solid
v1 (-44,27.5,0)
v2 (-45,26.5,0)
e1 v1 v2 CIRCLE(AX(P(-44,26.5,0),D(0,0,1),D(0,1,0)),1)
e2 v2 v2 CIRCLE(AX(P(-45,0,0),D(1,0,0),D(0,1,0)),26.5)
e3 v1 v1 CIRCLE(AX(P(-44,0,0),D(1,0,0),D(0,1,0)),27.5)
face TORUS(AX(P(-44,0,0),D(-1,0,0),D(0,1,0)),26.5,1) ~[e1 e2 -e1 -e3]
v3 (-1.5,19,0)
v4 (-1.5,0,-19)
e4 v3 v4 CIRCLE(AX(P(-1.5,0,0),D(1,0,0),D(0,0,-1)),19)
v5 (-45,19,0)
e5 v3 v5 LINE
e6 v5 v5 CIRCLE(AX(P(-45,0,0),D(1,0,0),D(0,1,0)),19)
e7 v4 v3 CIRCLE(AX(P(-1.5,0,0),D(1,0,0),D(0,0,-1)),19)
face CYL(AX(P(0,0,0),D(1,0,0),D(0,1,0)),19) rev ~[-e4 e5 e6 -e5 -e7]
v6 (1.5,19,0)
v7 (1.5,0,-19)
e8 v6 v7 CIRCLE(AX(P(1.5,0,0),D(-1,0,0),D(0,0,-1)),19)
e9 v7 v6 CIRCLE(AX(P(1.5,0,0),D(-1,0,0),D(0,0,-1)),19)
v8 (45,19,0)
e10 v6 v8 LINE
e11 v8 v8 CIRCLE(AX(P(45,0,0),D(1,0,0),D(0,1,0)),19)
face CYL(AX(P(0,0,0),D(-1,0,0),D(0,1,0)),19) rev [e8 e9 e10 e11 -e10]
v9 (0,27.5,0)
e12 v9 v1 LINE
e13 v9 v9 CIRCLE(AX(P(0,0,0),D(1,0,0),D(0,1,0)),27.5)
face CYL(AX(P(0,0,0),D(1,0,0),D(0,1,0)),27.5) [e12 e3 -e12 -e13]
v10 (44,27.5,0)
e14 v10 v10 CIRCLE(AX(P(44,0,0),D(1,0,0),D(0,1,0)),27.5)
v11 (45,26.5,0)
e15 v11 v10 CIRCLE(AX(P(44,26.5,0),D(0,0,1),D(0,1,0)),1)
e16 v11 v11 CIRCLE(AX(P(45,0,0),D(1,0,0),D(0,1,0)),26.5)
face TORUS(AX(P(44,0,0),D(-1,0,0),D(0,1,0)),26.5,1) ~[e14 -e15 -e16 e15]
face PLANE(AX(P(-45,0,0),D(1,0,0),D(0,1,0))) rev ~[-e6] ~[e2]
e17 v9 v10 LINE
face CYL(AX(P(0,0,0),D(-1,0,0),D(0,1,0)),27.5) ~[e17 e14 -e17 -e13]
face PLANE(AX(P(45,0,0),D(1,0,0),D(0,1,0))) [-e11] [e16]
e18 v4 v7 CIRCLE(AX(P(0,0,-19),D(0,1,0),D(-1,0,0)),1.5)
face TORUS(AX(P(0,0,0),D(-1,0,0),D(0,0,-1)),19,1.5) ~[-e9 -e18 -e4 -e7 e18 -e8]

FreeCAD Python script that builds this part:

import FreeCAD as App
import Part
import Sketcher
from FreeCAD import Vector


def edges_at(feature, points):
    """Names of the edges that pass closest to the given points."""
    edges = feature.Shape.Edges
    near = lambda p: min(range(len(edges)), key=lambda i: edges[i].distToShape(Part.Vertex(*p))[0])
    return sorted({f"Edge{near(p) + 1}" for p in points})

doc = App.newDocument("Part")
body = doc.addObject("PartDesign::Body", "Body")

sketch1 = body.newObject("Sketcher::SketchObject", "Sketch")
sketch1.AttachmentSupport = (doc.getObject("XZ_Plane"), [""])
sketch1.MapMode = "FlatFace"
sketch1.addGeometry(Part.Circle(Vector(0, -19, 0), Vector(0, 0, 1), 1.5), False)
sketch1.addConstraint(Sketcher.Constraint("PointOnObject", 0, 3, -2))
sketch1.addConstraint(Sketcher.Constraint("Diameter", 0, 3.0))
sketch1.addConstraint(Sketcher.Constraint("DistanceY", 0, 3, -1, 1, 19.0))
revolution = body.newObject("PartDesign::Revolution", "Revolution")
revolution.Profile = sketch1
revolution.ReferenceAxis = (sketch1, ["H_Axis"])
revolution.Angle = 360

sketch2 = body.newObject("Sketcher::SketchObject", "Sketch001")
sketch2.AttachmentSupport = (doc.getObject("YZ_Plane"), [""])
sketch2.MapMode = "FlatFace"
sketch2.addGeometry(Part.Circle(Vector(0, 0, 0), Vector(0, 0, 1), 27.5), False)
sketch2.addGeometry(Part.Circle(Vector(0, 0, 0), Vector(0, 0, 1), 19), False)
sketch2.addConstraint(Sketcher.Constraint("Coincident", 0, 3, -1, 1))
sketch2.addConstraint(Sketcher.Constraint("Coincident", 1, 3, -1, 1))
sketch2.addConstraint(Sketcher.Constraint("Diameter", 0, 55.0))
sketch2.addConstraint(Sketcher.Constraint("Diameter", 1, 38.0))
pad1 = body.newObject("PartDesign::Pad", "Pad")
pad1.Profile = sketch2
pad1.Length = 90
pad1.Midplane = True
doc.recompute()

fillet = body.newObject("PartDesign::Fillet", "Fillet")
fillet.Base = (pad1, edges_at(pad1, [(45, -27.5, 0)]))
fillet.Radius = 1
doc.recompute()

fillet2 = body.newObject("PartDesign::Fillet", "Fillet001")
fillet2.Base = (fillet, edges_at(fillet, [(-45, -27.5, 0)]))
fillet2.Radius = 1

doc.recompute()
